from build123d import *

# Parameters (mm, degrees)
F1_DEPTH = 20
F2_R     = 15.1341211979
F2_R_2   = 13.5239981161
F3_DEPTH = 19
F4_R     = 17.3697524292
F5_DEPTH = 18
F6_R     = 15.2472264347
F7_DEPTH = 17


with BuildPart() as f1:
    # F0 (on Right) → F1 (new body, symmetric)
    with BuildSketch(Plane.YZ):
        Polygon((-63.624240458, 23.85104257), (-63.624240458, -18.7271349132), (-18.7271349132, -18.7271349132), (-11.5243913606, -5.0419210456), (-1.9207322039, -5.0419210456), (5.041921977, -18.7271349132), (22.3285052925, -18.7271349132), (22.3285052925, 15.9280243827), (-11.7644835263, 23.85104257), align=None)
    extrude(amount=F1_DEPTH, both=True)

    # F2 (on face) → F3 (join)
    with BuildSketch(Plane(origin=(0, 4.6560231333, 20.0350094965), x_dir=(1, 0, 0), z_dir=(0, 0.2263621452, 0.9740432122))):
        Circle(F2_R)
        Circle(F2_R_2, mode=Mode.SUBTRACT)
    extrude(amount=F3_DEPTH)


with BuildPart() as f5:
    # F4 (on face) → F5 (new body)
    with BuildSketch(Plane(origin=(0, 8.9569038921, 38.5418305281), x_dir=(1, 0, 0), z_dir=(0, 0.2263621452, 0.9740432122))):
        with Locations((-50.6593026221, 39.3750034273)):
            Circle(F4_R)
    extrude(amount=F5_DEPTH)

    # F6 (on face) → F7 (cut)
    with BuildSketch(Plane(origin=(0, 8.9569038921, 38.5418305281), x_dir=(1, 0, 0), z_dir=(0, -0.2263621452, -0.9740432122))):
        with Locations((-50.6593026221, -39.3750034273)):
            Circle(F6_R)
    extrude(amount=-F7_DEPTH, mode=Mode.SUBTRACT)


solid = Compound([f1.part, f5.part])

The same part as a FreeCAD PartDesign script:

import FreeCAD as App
import Part
import Sketcher
Q = App.Units.Quantity


def add_polygon(sketch, points):
    """Adds a closed chain of lines whose ends are joined by coincident constraints."""
    first, n = sketch.GeometryCount, len(points)
    for a, b in zip(points, points[1:] + points[:1]):
        sketch.addGeometry(Part.LineSegment(App.Vector(*a, 0), App.Vector(*b, 0)), False)
    for i in range(n):
        sketch.addConstraint(Sketcher.Constraint("Coincident", first + i, 2, first + (i + 1) % n, 1))

doc = App.newDocument("Part")
body = doc.addObject("PartDesign::Body", "Body")

sketch1 = body.newObject("Sketcher::SketchObject", "Sketch")
sketch1.AttachmentSupport = (doc.getObject("YZ_Plane"), [""])
sketch1.MapMode = "FlatFace"
add_polygon(sketch1, [(-64, 24), (-64, -19), (-19, -19), (-12, -5), (-2, -5), (5, -19), (22, -19), (22, 16), (-12, 24)])
sketch1.addConstraint(Sketcher.Constraint("Vertical", 0))
sketch1.addConstraint(Sketcher.Constraint("Horizontal", 1))
sketch1.addConstraint(Sketcher.Constraint("Horizontal", 3))
sketch1.addConstraint(Sketcher.Constraint("Horizontal", 5))
sketch1.addConstraint(Sketcher.Constraint("Vertical", 6))
sketch1.addConstraint(Sketcher.Constraint("Horizontal", 8))
sketch1.addConstraint(Sketcher.Constraint("Horizontal", 1, 2, 4, 2))
sketch1.addConstraint(Sketcher.Constraint("DistanceX", 3, 1, 3, 2, Q("9.603659 mm")))
sketch1.addConstraint(Sketcher.Constraint("DistanceY", 6, 1, 6, 2, Q("34.655159 mm")))
sketch1.addConstraint(Sketcher.Constraint("DistanceX", 1, 1, 1, 2, Q("44.897106 mm")))
sketch1.addConstraint(Sketcher.Constraint("DistanceX", 5, 1, 5, 2, Q("17.286583 mm")))
sketch1.addConstraint(Sketcher.Constraint("DistanceX", 8, 2, 8, 1, Q("51.859757 mm")))
sketch1.addConstraint(Sketcher.Constraint("DistanceY", 0, 2, 0, 1, Q("42.578177 mm")))
sketch1.addConstraint(Sketcher.Constraint("DistanceX", 0, 2, -1, 1, Q("63.62424 mm")))
sketch1.addConstraint(Sketcher.Constraint("DistanceX", 2, 2, -1, 1, Q("11.524391 mm")))
sketch1.addConstraint(Sketcher.Constraint("DistanceY", 2, 2, -1, 1, Q("5.041921 mm")))
sketch1.addConstraint(Sketcher.Constraint("DistanceX", -1, 1, 4, 2, Q("5.041922 mm")))
sketch1.addConstraint(Sketcher.Constraint("Distance", 2, Q("15.464947 mm")))
pad1 = body.newObject("PartDesign::Pad", "Pad")
pad1.Profile = sketch1
pad1.Length = 40
pad1.Midplane = True

sketch2 = body.newObject("Sketcher::SketchObject", "Sketch001")
sketch2.Placement = App.Placement(App.Vector(0, 4.656023, 20.035009), App.Rotation(App.Vector(1, 0, 0), App.Vector(0, 0.974043212, -0.226362145), App.Vector(0, 0.226362145, 0.974043212), "ZXY"))
sketch2.addGeometry(Part.Circle(App.Vector(0, 0, 0), App.Vector(0, 0, 1), 15), False)
sketch2.addGeometry(Part.Circle(App.Vector(0, 0, 0), App.Vector(0, 0, 1), 14), False)
sketch2.addConstraint(Sketcher.Constraint("Coincident", 0, 3, -1, 1))
sketch2.addConstraint(Sketcher.Constraint("Coincident", 1, 3, -1, 1))
sketch2.addConstraint(Sketcher.Constraint("Diameter", 0, Q("30.268242 mm")))
sketch2.addConstraint(Sketcher.Constraint("Diameter", 1, Q("27.047996 mm")))
pad2 = body.newObject("PartDesign::Pad", "Pad001")
pad2.Profile = sketch2
pad2.Length = 19
body2 = doc.addObject("PartDesign::Body", "Body001")

sketch3 = body2.newObject("Sketcher::SketchObject", "Sketch002")
sketch3.Placement = App.Placement(App.Vector(0, 8.956904, 38.541831), App.Rotation(App.Vector(1, 0, 0), App.Vector(0, 0.974043212, -0.226362145), App.Vector(0, 0.226362145, 0.974043212), "ZXY"))
sketch3.addGeometry(Part.Circle(App.Vector(-51, 39, 0), App.Vector(0, 0, 1), 17), False)
sketch3.addConstraint(Sketcher.Constraint("Diameter", 0, Q("34.739505 mm")))
sketch3.addConstraint(Sketcher.Constraint("DistanceX", 0, 3, -1, 1, Q("50.659303 mm")))
sketch3.addConstraint(Sketcher.Constraint("DistanceY", -1, 1, 0, 3, Q("39.375003 mm")))
pad3 = body2.newObject("PartDesign::Pad", "Pad002")
pad3.Profile = sketch3
pad3.Length = 18

sketch4 = body2.newObject("Sketcher::SketchObject", "Sketch003")
sketch4.Placement = App.Placement(App.Vector(0, 8.956904, 38.541831), App.Rotation(App.Vector(1, 0, 0), App.Vector(0, -0.974043212, 0.226362145), App.Vector(0, -0.226362145, -0.974043212), "ZXY"))
sketch4.addGeometry(Part.Circle(App.Vector(-51, -39, 0), App.Vector(0, 0, 1), 15), False)
sketch4.addConstraint(Sketcher.Constraint("Diameter", 0, Q("30.494453 mm")))
sketch4.addConstraint(Sketcher.Constraint("DistanceX", 0, 3, -1, 1, Q("50.659303 mm")))
sketch4.addConstraint(Sketcher.Constraint("DistanceY", 0, 3, -1, 1, Q("39.375003 mm")))
pocket1 = body2.newObject("PartDesign::Pocket", "Pocket")
pocket1.Profile = sketch4
pocket1.Length = 17

doc.recompute()
